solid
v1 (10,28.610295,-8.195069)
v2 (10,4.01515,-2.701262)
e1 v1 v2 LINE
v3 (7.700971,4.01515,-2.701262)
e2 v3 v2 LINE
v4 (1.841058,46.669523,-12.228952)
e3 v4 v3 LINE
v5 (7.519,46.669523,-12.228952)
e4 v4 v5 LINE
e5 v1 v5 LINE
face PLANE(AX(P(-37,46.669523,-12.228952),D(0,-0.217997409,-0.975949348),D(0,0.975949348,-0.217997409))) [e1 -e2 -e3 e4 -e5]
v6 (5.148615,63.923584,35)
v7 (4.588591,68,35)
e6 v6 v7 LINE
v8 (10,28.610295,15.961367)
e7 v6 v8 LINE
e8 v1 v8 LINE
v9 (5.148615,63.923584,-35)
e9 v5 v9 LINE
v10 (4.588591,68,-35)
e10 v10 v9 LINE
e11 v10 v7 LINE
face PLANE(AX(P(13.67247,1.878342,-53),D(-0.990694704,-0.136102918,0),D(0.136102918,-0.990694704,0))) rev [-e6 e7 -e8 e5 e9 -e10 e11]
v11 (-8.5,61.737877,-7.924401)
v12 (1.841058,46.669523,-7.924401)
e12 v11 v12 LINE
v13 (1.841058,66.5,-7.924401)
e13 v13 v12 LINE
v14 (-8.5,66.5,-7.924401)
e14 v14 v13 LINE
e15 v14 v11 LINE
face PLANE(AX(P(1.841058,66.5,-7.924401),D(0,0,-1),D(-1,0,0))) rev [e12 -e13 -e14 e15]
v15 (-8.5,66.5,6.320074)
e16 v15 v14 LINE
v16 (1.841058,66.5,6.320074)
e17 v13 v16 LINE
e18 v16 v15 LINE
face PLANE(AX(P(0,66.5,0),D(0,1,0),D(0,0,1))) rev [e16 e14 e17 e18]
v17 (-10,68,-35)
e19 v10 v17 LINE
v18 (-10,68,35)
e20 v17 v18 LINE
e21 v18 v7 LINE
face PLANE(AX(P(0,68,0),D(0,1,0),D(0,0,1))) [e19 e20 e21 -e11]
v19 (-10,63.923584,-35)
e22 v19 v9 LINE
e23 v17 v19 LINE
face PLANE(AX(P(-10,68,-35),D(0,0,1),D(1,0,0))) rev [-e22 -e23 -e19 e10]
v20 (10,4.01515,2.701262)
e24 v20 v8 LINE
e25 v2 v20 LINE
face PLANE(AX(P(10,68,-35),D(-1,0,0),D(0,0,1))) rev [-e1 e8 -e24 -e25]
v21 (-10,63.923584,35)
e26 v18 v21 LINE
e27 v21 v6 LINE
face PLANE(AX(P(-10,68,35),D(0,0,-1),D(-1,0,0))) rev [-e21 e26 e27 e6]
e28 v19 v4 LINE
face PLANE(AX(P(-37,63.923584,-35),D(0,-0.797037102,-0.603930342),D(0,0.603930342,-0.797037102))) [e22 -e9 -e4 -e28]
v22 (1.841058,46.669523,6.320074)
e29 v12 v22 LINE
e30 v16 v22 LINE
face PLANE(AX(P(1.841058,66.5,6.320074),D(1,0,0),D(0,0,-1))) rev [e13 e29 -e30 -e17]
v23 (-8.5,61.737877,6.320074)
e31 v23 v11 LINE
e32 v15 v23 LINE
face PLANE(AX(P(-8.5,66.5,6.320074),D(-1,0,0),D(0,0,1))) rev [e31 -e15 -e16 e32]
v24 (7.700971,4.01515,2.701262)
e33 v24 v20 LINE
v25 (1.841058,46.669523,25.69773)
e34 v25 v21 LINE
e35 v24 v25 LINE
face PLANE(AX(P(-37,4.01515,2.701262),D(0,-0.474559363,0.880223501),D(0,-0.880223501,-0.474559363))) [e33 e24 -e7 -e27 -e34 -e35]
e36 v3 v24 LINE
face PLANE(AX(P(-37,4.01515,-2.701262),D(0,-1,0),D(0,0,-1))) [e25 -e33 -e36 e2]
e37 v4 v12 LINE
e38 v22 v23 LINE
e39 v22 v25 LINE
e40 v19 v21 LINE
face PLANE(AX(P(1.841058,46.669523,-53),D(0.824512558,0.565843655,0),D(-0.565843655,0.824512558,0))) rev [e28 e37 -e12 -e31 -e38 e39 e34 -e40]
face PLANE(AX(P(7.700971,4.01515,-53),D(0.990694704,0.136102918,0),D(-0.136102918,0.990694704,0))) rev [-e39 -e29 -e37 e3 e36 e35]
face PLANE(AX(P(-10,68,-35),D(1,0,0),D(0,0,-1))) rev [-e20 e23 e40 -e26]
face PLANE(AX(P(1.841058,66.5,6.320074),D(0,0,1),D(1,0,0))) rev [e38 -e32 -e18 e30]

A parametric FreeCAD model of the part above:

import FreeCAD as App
import Part
import Sketcher
from FreeCAD import Vector


def add_polygon(sketch, points):
    """Adds a closed chain of lines whose ends are joined by coincident constraints."""
    first, n = sketch.GeometryCount, len(points)
    for a, b in zip(points, points[1:] + points[:1]):
        sketch.addGeometry(Part.LineSegment(App.Vector(*a, 0), App.Vector(*b, 0)), False)
    for i in range(n):
        sketch.addConstraint(Sketcher.Constraint("Coincident", first + i, 2, first + (i + 1) % n, 1))

doc = App.newDocument("Part")
body = doc.addObject("PartDesign::Body", "Body")

# Sketch on XZ plane
sketch1 = body.newObject("Sketcher::SketchObject", "Sketch")
sketch1.AttachmentSupport = (doc.getObject("XZ_Plane"), [""])
sketch1.MapMode = "FlatFace"
add_polygon(sketch1, [(-10, -35), (-10, 35), (10, 35), (10, -35)])  # lines 0-3
sketch1.addConstraint([
    Sketcher.Constraint("Vertical", 0),
    Sketcher.Constraint("Horizontal", 1),
    Sketcher.Constraint("Vertical", 2),
    Sketcher.Constraint("Horizontal", 3),
    Sketcher.Constraint("Symmetric", 0, 2, 2, 2, -1, 1),
    Sketcher.Constraint("DistanceX", 1, 1, 1, 2, 20.0),
    Sketcher.Constraint("DistanceY", 0, 1, 0, 2, 70.0),
])
pad1 = body.newObject("PartDesign::Pad", "Pad")
pad1.Profile = sketch1
pad1.Length = 68
pad1.Reversed = True

# Sketch on XZ plane
sketch2 = body.newObject("Sketcher::SketchObject", "Sketch001")
sketch2.AttachmentSupport = (doc.getObject("XZ_Plane"), [""])
sketch2.MapMode = "FlatFace"
add_polygon(sketch2, [(-9, 6), (-9, -8), (2, -8), (2, 6)])  # lines 0-3
sketch2.addConstraint([
    Sketcher.Constraint("Vertical", 0),
    Sketcher.Constraint("Horizontal", 1),
    Sketcher.Constraint("Vertical", 2),
    Sketcher.Constraint("Horizontal", 3),
    Sketcher.Constraint("DistanceX", 0, 2, -1, 1, 8.5),
    Sketcher.Constraint("DistanceY", 0, 2, -1, 1, 7.924401),
    Sketcher.Constraint("DistanceX", 1, 1, 1, 2, 10.341058),
    Sketcher.Constraint("DistanceY", 0, 2, 0, 1, 14.244475),
])
pocket1 = body.newObject("PartDesign::Pocket", "Pocket")
pocket1.Profile = sketch2
pocket1.Length = 66.5

# Sketch on YZ plane
sketch3 = body.newObject("Sketcher::SketchObject", "Sketch002")
sketch3.AttachmentSupport = (doc.getObject("YZ_Plane"), [""])
sketch3.MapMode = "FlatFace"
sketch3.AttachmentOffset = App.Placement(Vector(0, 0, -10), App.Rotation())
add_polygon(sketch3, [(63.9, -35), (68, -35), (68, -39.1), (-5, -39.1), (-5, 43.8), (68, 43.8), (68, 35), (63.9, 35), (4, 2.7), (4, -2.7), (46.7, -12.2)])  # lines 0-10
sketch3.addConstraint([
    Sketcher.Constraint("Horizontal", 0),
    Sketcher.Constraint("Vertical", 1),
    Sketcher.Constraint("Horizontal", 2),
    Sketcher.Constraint("Vertical", 3),
    Sketcher.Constraint("Horizontal", 4),
    Sketcher.Constraint("Vertical", 5),
    Sketcher.Constraint("Horizontal", 6),
    Sketcher.Constraint("Vertical", 8),
    Sketcher.Constraint("Symmetric", 0, 2, 5, 2, -1),
    Sketcher.Constraint("Vertical", 6, 2, 10, 2),
    Sketcher.Constraint("DistanceX", -1, 1, 0, 2, 68.0),
    Sketcher.Constraint("DistanceY", 0, 2, -1, 1, 35.0),
    Sketcher.Constraint("DistanceY", 1, 2, 1, 1, 4.089851),
    Sketcher.Constraint("DistanceY", 1, 2, 9, 2, 26.860899),
    Sketcher.Constraint("Distance", 7, 68.06048),
    Sketcher.Constraint("Distance", 9, 43.705519),
    Sketcher.Constraint("Distance", 10, 28.569621),
    Sketcher.Constraint("DistanceX", 0, 1, 0, 2, 4.076416),
    Sketcher.Constraint("DistanceX", 2, 2, 2, 1, 73.043476),
    Sketcher.Constraint("DistanceY", 3, 1, 3, 2, 82.871754),
    Sketcher.Constraint("DistanceY", 8, 2, 8, 1, 5.402524),
])
pocket2 = body.newObject("PartDesign::Pocket", "Pocket001")
pocket2.Profile = sketch3
pocket2.Type = "ThroughAll"
pocket2.Midplane = True

# Sketch on XY plane
sketch4 = body.newObject("Sketcher::SketchObject", "Sketch003")
sketch4.AttachmentSupport = (doc.getObject("XY_Plane"), [""])
sketch4.MapMode = "FlatFace"
sketch4.AttachmentOffset = App.Placement(Vector(0, 0, -35), App.Rotation())
add_polygon(sketch4, [(10, 28.6), (5.1, 63.9), (4.6, 68), (10, 68)])  # lines 0-3
add_polygon(sketch4, [(7.7, 4), (7.7, -1.1), (-16.5, -1.1), (-16.5, 63.9), (-10, 63.9), (1.8, 46.7)])  # lines 4-9
sketch4.addConstraint([
    Sketcher.Constraint("Horizontal", 2),
    Sketcher.Constraint("Vertical", 3),
    Sketcher.Constraint("Vertical", 4),
    Sketcher.Constraint("Horizontal", 5),
    Sketcher.Constraint("Vertical", 6),
    Sketcher.Constraint("Horizontal", 7),
    Sketcher.Constraint("Parallel", 0, 1),
    Sketcher.Constraint("Parallel", 1, 9),
    Sketcher.Constraint("Horizontal", 0, 2, 6, 2),
    Sketcher.Constraint("DistanceY", -1, 1, 1, 2, 68.0),
    Sketcher.Constraint("DistanceX", -1, 1, 2, 2, 10.0),
    Sketcher.Constraint("DistanceX", 7, 2, -1, 1, 10.0),
    Sketcher.Constraint("DistanceX", 2, 1, 2, 2, 5.411409),
    Sketcher.Constraint("DistanceX", 5, 2, 5, 1, 24.164151),
    Sketcher.Constraint("DistanceX", 7, 1, 7, 2, 6.46318),
    Sketcher.Constraint("DistanceY", 4, 2, 4, 1, 5.09287),
    Sketcher.Constraint("DistanceY", 3, 2, 3, 1, 39.389705),
    Sketcher.Constraint("DistanceY", 6, 1, 6, 2, 65.001304),
    Sketcher.Constraint("DistanceY", 4, 2, -1, 1, 1.07772),
    Sketcher.Constraint("DistanceY", 8, 2, 0, 2, 17.254061),
])
pocket3 = body.newObject("PartDesign::Pocket", "Pocket002")
pocket3.Profile = sketch4
pocket3.Type = "ThroughAll"
pocket3.Midplane = True

doc.recompute()
